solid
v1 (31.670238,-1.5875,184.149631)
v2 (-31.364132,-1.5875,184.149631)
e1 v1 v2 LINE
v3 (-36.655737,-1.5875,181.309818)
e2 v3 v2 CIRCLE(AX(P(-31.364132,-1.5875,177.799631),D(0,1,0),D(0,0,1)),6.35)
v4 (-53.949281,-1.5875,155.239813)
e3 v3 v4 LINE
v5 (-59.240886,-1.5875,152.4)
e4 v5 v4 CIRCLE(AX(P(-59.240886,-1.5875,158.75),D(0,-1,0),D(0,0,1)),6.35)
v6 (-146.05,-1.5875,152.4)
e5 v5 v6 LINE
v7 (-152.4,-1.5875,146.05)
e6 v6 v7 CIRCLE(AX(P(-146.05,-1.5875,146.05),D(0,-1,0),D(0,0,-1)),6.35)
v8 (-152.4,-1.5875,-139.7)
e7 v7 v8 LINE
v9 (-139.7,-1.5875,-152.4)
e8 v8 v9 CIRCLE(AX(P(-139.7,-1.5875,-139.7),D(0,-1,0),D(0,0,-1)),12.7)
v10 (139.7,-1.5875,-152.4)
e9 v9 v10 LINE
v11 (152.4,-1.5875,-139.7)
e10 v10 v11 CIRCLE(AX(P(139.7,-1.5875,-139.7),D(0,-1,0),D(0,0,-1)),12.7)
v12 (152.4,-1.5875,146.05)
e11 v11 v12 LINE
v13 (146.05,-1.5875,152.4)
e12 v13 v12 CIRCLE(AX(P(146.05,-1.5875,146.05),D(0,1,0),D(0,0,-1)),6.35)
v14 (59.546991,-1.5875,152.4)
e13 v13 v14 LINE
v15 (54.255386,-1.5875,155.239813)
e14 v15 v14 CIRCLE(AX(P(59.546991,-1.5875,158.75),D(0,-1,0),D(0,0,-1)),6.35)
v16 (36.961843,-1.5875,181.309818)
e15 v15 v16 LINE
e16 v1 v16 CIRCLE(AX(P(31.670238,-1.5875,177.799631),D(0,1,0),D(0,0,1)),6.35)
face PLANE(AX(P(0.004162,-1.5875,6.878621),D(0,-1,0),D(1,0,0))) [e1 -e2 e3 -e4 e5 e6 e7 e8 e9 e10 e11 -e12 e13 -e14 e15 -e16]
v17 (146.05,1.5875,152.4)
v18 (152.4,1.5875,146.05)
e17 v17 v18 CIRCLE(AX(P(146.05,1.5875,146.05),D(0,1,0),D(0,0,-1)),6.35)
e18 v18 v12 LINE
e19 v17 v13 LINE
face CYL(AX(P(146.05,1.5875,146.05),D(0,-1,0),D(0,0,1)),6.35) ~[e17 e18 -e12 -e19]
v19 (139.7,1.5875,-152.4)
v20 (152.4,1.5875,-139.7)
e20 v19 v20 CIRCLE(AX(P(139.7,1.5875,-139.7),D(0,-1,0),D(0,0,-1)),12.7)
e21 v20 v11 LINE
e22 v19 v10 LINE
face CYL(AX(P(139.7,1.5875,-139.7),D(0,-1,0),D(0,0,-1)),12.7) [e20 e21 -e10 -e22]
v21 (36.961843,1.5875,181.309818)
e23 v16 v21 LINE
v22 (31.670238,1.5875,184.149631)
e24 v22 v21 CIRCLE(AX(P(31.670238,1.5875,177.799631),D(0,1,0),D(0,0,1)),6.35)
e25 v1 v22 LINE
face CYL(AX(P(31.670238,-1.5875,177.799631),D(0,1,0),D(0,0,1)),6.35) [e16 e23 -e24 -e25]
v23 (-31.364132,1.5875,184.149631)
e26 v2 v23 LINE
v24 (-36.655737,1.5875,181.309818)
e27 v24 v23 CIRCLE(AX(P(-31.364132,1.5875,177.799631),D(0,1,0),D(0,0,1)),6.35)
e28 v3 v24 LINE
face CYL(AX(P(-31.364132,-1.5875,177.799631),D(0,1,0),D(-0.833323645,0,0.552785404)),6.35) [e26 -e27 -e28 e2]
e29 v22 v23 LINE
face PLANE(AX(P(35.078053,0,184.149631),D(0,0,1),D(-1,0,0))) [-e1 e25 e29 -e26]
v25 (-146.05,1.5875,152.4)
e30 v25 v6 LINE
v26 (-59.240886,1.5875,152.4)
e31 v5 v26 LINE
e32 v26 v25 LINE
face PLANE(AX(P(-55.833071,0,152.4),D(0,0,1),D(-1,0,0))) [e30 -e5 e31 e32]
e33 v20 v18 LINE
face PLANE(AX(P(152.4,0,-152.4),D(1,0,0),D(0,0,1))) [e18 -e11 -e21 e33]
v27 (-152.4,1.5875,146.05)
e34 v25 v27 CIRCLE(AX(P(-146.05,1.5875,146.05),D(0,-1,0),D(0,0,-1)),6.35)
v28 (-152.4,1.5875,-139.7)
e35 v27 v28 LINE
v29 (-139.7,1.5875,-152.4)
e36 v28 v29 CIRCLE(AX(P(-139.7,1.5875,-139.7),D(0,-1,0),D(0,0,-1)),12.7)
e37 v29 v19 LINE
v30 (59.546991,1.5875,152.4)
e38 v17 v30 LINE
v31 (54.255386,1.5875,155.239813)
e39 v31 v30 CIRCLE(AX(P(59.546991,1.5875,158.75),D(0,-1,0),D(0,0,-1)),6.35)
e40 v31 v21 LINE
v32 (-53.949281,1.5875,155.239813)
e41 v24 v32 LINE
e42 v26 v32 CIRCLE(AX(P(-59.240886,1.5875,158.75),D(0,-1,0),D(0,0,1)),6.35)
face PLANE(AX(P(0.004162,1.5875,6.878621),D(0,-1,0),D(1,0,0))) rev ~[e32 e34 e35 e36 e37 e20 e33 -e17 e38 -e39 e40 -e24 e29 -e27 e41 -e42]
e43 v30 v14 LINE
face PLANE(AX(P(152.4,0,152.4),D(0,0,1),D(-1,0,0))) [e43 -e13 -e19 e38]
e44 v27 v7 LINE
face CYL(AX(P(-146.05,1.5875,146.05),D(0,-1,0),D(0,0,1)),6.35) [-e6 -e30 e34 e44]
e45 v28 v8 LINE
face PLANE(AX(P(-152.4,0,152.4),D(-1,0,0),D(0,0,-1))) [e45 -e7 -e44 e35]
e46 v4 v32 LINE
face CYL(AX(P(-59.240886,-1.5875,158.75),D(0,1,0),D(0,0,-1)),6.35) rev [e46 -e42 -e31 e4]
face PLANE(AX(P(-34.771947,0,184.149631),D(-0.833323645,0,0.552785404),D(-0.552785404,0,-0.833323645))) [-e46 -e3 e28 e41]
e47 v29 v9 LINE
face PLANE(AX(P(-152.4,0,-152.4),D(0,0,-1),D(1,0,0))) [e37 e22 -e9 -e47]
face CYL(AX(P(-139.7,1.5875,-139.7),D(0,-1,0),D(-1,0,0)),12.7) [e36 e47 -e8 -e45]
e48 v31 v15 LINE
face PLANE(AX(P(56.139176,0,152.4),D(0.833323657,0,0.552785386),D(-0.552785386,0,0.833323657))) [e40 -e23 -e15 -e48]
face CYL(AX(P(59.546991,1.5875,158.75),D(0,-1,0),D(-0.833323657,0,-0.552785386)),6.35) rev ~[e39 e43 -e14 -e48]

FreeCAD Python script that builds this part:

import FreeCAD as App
import Part
import Sketcher
from FreeCAD import Vector
Q = App.Units.Quantity


def edges_at(feature, points):
    """Names of the edges that pass closest to the given points."""
    edges = feature.Shape.Edges
    near = lambda p: min(range(len(edges)), key=lambda i: edges[i].distToShape(Part.Vertex(*p))[0])
    return sorted({f"Edge{near(p) + 1}" for p in points})

doc = App.newDocument("Part")
body = doc.addObject("PartDesign::Body", "Body")

sketch1 = body.newObject("Sketcher::SketchObject", "Sketch")
sketch1.AttachmentSupport = (doc.getObject("XZ_Plane"), [""])
sketch1.MapMode = "FlatFace"
sketch1.addGeometry([
    Part.LineSegment(Vector(-56, 152, 0), Vector(-152, 152, 0)),
    Part.LineSegment(Vector(-152, 152, 0), Vector(-152, -152, 0)),
    Part.LineSegment(Vector(-152, -152, 0), Vector(152, -152, 0)),
    Part.LineSegment(Vector(152, -152, 0), Vector(152, 152, 0)),
    Part.LineSegment(Vector(152, 152, 0), Vector(56, 152, 0)),
    Part.LineSegment(Vector(56, 152, 0), Vector(35, 184, 0)),
    Part.LineSegment(Vector(35, 184, 0), Vector(-35, 184, 0)),
    Part.LineSegment(Vector(-35, 184, 0), Vector(-56, 152, 0)),
], False)
sketch1.addConstraint([
    Sketcher.Constraint("Coincident", 0, 2, 1, 1),
    Sketcher.Constraint("Coincident", 1, 2, 2, 1),
    Sketcher.Constraint("Coincident", 2, 2, 3, 1),
    Sketcher.Constraint("Coincident", 3, 2, 4, 1),
    Sketcher.Constraint("Coincident", 4, 2, 5, 1),
    Sketcher.Constraint("Coincident", 5, 2, 6, 1),
    Sketcher.Constraint("Coincident", 6, 2, 7, 1),
    Sketcher.Constraint("Coincident", 7, 2, 0, 1),
    Sketcher.Constraint("Horizontal", 0),
    Sketcher.Constraint("Vertical", 1),
    Sketcher.Constraint("Horizontal", 2),
    Sketcher.Constraint("Vertical", 3),
    Sketcher.Constraint("Horizontal", 4),
    Sketcher.Constraint("Horizontal", 6),
    Sketcher.Constraint("Symmetric", 0, 2, 2, 2, -1, 1),
    Sketcher.Constraint("Horizontal", 0, 2, 3, 2),
    Sketcher.Constraint("Equal", 2, 1),
    Sketcher.Constraint("Equal", 5, 7),
    Sketcher.Constraint("DistanceX", 2, 1, 2, 2, Q("12 in")),
    Sketcher.Constraint("Distance", 5, Q("1.5 in")),
    Sketcher.Constraint("DistanceX", 6, 2, 6, 1, Q("2.75 in")),
    Sketcher.Constraint("DistanceX", 0, 2, 0, 1, Q("96.566929 mm")),
    Sketcher.Constraint("DistanceX", 4, 2, 4, 1, Q("96.260824 mm")),
])
pad1 = body.newObject("PartDesign::Pad", "Pad")
pad1.Profile = sketch1
pad1.Length = Q("0.125 in")
pad1.Midplane = True
doc.recompute()

fillet = body.newObject("PartDesign::Fillet", "Fillet")
fillet.Base = (pad1, edges_at(pad1, [
    (152.4, 0, 152.4),
    (-152.4, 0, 152.4),
    (-55.833, 0, 152.4),
    (-34.772, 0, 184.15),
    (35.078, 0, 184.15),
    (56.139, 0, 152.4),
]))
fillet.Radius = Q("0.25 in")
doc.recompute()

fillet2 = body.newObject("PartDesign::Fillet", "Fillet001")
fillet2.Base = (fillet, edges_at(fillet, [(-152.4, 0, -152.4), (152.4, 0, -152.4)]))
fillet2.Radius = Q("0.5 in")

doc.recompute()
